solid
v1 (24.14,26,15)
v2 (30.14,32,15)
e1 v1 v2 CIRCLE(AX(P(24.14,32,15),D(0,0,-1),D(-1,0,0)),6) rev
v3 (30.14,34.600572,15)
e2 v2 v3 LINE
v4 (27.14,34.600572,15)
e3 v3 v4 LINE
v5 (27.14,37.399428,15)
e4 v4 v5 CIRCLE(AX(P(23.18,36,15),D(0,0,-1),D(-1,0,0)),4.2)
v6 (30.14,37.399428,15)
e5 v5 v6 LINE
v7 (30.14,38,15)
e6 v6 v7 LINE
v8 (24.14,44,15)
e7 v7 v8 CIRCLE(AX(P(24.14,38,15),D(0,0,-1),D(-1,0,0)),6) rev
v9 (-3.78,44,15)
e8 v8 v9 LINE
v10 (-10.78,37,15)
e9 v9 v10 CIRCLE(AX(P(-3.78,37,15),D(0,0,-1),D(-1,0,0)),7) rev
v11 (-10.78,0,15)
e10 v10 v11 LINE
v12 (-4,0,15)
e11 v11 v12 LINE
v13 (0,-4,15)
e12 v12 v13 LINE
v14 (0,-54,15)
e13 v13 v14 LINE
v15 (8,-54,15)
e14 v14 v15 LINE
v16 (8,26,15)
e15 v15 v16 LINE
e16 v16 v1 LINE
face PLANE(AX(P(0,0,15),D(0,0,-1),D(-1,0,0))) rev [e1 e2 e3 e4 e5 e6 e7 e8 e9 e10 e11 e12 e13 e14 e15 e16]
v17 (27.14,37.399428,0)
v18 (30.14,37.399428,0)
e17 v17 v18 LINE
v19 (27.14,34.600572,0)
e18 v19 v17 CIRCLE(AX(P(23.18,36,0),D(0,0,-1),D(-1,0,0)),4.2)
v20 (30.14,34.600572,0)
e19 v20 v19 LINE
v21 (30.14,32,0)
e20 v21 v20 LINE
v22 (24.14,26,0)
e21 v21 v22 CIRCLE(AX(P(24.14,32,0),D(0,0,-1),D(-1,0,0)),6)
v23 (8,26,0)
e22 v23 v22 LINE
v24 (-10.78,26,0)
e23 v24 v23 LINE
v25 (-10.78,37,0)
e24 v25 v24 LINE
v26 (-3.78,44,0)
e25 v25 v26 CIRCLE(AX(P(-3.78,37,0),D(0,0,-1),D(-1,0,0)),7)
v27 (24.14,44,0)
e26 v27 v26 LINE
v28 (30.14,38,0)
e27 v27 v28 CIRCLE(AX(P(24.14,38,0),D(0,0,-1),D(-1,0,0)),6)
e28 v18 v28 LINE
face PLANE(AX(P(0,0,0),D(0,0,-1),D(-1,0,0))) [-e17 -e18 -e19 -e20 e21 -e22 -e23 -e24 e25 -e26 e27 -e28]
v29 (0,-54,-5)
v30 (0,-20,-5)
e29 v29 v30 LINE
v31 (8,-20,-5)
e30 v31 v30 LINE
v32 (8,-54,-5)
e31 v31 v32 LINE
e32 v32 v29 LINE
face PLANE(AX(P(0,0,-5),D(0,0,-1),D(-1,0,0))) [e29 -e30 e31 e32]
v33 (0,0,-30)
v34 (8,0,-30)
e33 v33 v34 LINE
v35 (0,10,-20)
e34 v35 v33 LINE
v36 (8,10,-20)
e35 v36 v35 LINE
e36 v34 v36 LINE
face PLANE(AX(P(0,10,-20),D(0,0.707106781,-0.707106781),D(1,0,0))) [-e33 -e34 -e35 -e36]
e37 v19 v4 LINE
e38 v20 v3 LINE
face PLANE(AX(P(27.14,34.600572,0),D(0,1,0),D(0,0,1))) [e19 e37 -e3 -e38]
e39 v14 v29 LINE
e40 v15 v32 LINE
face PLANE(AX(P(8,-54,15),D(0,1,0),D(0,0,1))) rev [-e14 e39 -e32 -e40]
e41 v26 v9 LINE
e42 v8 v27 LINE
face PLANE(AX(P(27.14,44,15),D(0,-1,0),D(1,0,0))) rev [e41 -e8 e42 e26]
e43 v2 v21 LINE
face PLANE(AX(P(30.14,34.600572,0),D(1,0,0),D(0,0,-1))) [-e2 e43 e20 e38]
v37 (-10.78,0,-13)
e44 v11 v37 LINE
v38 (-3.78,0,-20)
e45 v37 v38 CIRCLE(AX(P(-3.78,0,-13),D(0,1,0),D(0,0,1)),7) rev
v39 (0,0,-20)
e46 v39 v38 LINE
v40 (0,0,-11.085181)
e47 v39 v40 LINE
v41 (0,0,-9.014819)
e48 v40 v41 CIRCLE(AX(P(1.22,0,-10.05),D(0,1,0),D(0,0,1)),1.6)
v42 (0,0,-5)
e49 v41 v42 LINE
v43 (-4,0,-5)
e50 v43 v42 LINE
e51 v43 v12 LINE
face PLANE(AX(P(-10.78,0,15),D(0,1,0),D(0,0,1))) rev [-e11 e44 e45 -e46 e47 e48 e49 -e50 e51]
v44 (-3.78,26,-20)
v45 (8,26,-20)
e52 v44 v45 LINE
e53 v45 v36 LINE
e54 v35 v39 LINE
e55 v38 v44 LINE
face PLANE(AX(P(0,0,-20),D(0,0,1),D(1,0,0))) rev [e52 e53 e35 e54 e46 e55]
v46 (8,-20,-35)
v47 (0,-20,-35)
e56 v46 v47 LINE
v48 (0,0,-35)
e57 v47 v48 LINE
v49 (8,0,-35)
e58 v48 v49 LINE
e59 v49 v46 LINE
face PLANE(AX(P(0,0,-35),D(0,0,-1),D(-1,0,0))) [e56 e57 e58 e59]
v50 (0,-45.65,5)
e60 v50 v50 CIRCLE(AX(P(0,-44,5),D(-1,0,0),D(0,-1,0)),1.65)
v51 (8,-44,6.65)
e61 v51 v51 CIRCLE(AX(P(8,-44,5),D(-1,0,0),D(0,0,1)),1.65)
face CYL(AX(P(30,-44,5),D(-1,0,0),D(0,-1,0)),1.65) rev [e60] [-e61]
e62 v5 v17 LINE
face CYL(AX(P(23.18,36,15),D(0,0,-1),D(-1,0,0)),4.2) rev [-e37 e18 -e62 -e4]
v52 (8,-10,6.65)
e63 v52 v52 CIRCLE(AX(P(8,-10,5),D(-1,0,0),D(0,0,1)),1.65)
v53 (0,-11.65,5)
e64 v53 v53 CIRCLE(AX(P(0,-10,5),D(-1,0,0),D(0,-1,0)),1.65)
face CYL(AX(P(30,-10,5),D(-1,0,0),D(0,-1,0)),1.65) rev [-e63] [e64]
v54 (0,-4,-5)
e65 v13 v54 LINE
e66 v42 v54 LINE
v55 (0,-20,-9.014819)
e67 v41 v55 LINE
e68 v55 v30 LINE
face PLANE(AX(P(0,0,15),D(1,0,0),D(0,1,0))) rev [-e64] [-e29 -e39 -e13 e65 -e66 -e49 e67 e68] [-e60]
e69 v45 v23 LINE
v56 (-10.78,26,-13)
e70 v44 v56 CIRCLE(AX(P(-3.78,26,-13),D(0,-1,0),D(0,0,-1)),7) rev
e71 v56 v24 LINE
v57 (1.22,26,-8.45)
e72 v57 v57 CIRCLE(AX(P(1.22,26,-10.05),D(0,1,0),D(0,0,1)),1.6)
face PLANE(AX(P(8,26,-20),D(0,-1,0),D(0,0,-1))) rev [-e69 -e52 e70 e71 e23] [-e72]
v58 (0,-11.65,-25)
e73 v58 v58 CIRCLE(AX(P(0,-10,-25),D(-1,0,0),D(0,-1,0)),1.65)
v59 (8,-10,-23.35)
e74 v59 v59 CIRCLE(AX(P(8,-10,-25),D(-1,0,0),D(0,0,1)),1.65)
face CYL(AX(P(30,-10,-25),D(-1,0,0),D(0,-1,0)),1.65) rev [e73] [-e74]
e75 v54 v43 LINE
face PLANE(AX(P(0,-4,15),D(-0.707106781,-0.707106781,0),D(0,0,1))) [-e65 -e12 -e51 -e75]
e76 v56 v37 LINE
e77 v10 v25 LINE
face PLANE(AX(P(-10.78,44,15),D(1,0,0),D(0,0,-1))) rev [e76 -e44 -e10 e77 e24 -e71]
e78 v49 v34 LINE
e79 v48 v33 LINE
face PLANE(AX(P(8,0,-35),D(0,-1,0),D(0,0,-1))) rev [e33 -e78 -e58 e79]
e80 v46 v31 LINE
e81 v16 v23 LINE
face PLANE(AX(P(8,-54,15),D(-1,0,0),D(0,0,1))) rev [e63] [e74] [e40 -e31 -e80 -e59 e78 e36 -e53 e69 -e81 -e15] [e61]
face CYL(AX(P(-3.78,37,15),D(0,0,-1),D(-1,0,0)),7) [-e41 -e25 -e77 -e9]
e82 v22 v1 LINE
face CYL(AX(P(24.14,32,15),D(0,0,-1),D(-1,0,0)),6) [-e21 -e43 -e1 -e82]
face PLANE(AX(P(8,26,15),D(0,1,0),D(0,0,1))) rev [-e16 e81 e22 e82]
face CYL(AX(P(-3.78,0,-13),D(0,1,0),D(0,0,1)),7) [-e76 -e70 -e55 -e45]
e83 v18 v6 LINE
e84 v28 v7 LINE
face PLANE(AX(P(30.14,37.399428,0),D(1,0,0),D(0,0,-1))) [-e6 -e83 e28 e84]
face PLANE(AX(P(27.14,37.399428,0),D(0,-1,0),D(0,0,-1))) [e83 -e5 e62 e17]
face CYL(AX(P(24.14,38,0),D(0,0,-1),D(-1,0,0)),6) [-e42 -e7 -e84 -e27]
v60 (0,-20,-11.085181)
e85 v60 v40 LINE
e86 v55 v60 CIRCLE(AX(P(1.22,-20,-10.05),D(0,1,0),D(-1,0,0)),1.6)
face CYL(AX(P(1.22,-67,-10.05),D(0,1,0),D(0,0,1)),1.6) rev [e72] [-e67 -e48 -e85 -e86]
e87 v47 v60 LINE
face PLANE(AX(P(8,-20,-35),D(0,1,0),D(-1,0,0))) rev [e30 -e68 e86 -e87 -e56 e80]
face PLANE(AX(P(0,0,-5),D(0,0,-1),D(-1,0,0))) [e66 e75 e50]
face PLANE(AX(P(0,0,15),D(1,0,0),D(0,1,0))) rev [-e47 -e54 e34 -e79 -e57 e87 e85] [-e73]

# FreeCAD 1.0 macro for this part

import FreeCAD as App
import Part
import Sketcher

V = App.Vector


def edges_at(feature, points):
    """Names of the edges that pass closest to the given points."""
    edges = feature.Shape.Edges
    near = lambda p: min(range(len(edges)), key=lambda i: edges[i].distToShape(Part.Vertex(*p))[0])
    return sorted({f"Edge{near(p) + 1}" for p in points})

doc = App.newDocument("Part")
body = doc.addObject("PartDesign::Body", "Body")

# Sketch on XY plane
sketch1 = body.newObject("Sketcher::SketchObject", "Sketch")
sketch1.AttachmentSupport = (doc.getObject("XY_Plane"), [""])
sketch1.MapMode = "FlatFace"
sketch1.addGeometry([
    Part.LineSegment(V(8, 26, 0), V(27, 26, 0)),  # 0
    Part.LineSegment(V(27, 26, 0), V(27, 44, 0)),  # 1
    Part.LineSegment(V(27, 44, 0), V(-11, 44, 0)),  # 2
    Part.LineSegment(V(-11, 44, 0), V(-11, 0, 0)),  # 3
    Part.LineSegment(V(-11, 0, 0), V(0, 0, 0)),  # 4
    Part.LineSegment(V(0, 0, 0), V(0, -54, 0)),  # 5
    Part.LineSegment(V(0, -54, 0), V(8, -54, 0)),  # 6
    Part.LineSegment(V(8, -54, 0), V(8, 26, 0)),  # 7
], False)
sketch1.addConstraint([
    Sketcher.Constraint("Coincident", 0, 2, 1, 1),
    Sketcher.Constraint("Coincident", 1, 2, 2, 1),
    Sketcher.Constraint("Coincident", 2, 2, 3, 1),
    Sketcher.Constraint("Coincident", 3, 2, 4, 1),
    Sketcher.Constraint("Coincident", 4, 2, 5, 1),
    Sketcher.Constraint("Coincident", 5, 2, 6, 1),
    Sketcher.Constraint("Coincident", 6, 2, 7, 1),
    Sketcher.Constraint("Coincident", 7, 2, 0, 1),
    Sketcher.Constraint("Horizontal", 0),
    Sketcher.Constraint("Vertical", 1),
    Sketcher.Constraint("Horizontal", 2),
    Sketcher.Constraint("Vertical", 3),
    Sketcher.Constraint("Horizontal", 4),
    Sketcher.Constraint("Vertical", 5),
    Sketcher.Constraint("Horizontal", 6),
    Sketcher.Constraint("Vertical", 7),
    Sketcher.Constraint("Coincident", 4, 2, -1, 1),
    Sketcher.Constraint("DistanceX", 6, 1, 6, 2, 8.0),
    Sketcher.Constraint("DistanceY", 1, 1, 1, 2, 18.0),
    Sketcher.Constraint("DistanceY", 3, 2, 3, 1, 44.0),
    Sketcher.Constraint("DistanceY", 5, 2, 5, 1, 54.0),
    Sketcher.Constraint("DistanceX", 0, 1, 0, 2, 19.14),
    Sketcher.Constraint("DistanceX", 2, 2, 2, 1, 37.92),
])
pad1 = body.newObject("PartDesign::Pad", "Pad")
pad1.Profile = sketch1
pad1.Length = 15

# Sketch on XY plane
sketch2 = body.newObject("Sketcher::SketchObject", "Sketch001")
sketch2.AttachmentSupport = (doc.getObject("XY_Plane"), [""])
sketch2.MapMode = "FlatFace"
sketch2.addGeometry([
    Part.LineSegment(V(8, 26, 0), V(8, 0, 0)),
    Part.LineSegment(V(8, 0, 0), V(-11, 0, 0)),
    Part.LineSegment(V(-11, 0, 0), V(-11, 26, 0)),
    Part.LineSegment(V(-11, 26, 0), V(8, 26, 0)),
], False)
sketch2.addConstraint([
    Sketcher.Constraint("Coincident", 0, 2, 1, 1),
    Sketcher.Constraint("Coincident", 1, 2, 2, 1),
    Sketcher.Constraint("Coincident", 2, 2, 3, 1),
    Sketcher.Constraint("Coincident", 3, 2, 0, 1),
    Sketcher.Constraint("Vertical", 0),
    Sketcher.Constraint("Horizontal", 1),
    Sketcher.Constraint("Vertical", 2),
    Sketcher.Constraint("Horizontal", 3),
    Sketcher.Constraint("PointOnObject", 0, 2, -1),
    Sketcher.Constraint("DistanceY", 0, 2, 0, 1, 26.0),
    Sketcher.Constraint("DistanceX", -1, 1, 0, 2, 8.0),
    Sketcher.Constraint("DistanceX", 1, 2, 1, 1, 18.78),
])
pad2 = body.newObject("PartDesign::Pad", "Pad001")
pad2.Profile = sketch2
pad2.Length = 20
pad2.Reversed = True

# Sketch on XY plane
sketch3 = body.newObject("Sketcher::SketchObject", "Sketch002")
sketch3.AttachmentSupport = (doc.getObject("XY_Plane"), [""])
sketch3.MapMode = "FlatFace"
sketch3.addGeometry([
    Part.LineSegment(V(8, 0, 0), V(8, -54, 0)),
    Part.LineSegment(V(8, -54, 0), V(0, -54, 0)),
    Part.LineSegment(V(0, -54, 0), V(0, 0, 0)),
    Part.LineSegment(V(0, 0, 0), V(8, 0, 0)),
], False)
sketch3.addConstraint([
    Sketcher.Constraint("Coincident", 0, 2, 1, 1),
    Sketcher.Constraint("Coincident", 1, 2, 2, 1),
    Sketcher.Constraint("Coincident", 2, 2, 3, 1),
    Sketcher.Constraint("Coincident", 3, 2, 0, 1),
    Sketcher.Constraint("Vertical", 0),
    Sketcher.Constraint("Horizontal", 1),
    Sketcher.Constraint("Vertical", 2),
    Sketcher.Constraint("Horizontal", 3),
    Sketcher.Constraint("Coincident", 2, 2, -1, 1),
    Sketcher.Constraint("DistanceX", 1, 2, 1, 1, 8.0),
    Sketcher.Constraint("DistanceY", 0, 2, 0, 1, 54.0),
])
pad3 = body.newObject("PartDesign::Pad", "Pad002")
pad3.Profile = sketch3
pad3.Length = 5
pad3.Reversed = True

# Sketch on XY plane
sketch4 = body.newObject("Sketcher::SketchObject", "Sketch003")
sketch4.AttachmentSupport = (doc.getObject("XY_Plane"), [""])
sketch4.MapMode = "FlatFace"
sketch4.addGeometry(Part.Circle(V(23.2, 36, 0), V(0, 0, 1), 4.2), False)
sketch4.addConstraint([
    Sketcher.Constraint("Diameter", 0, 8.4),
    Sketcher.Constraint("DistanceY", -1, 1, 0, 3, 36.0),
    Sketcher.Constraint("DistanceX", -1, 1, 0, 3, 23.18),
])
pocket1 = body.newObject("PartDesign::Pocket", "Pocket")
pocket1.Profile = sketch4
pocket1.Length = 15
pocket1.Reversed = True
doc.recompute()

chamfer = body.newObject("PartDesign::Chamfer", "Chamfer")
chamfer.Base = (pocket1, edges_at(pocket1, [(0, 0, 5)]))
chamfer.Size = 4
doc.recompute()

fillet = body.newObject("PartDesign::Fillet", "Fillet")
fillet.Base = (chamfer, edges_at(chamfer, [(-10.78, 44, 7.5)]))
fillet.Radius = 7
doc.recompute()

fillet2 = body.newObject("PartDesign::Fillet", "Fillet001")
fillet2.Base = (fillet, edges_at(fillet, [(-10.78, 13, -20)]))
fillet2.Radius = 7

# Sketch on XY plane
sketch5 = body.newObject("Sketcher::SketchObject", "Sketch004")
sketch5.AttachmentSupport = (doc.getObject("XY_Plane"), [""])
sketch5.MapMode = "FlatFace"
sketch5.AttachmentOffset = App.Placement(V(0, 0, -5), App.Rotation())
sketch5.addGeometry([
    Part.LineSegment(V(8, 0, 0), V(8, -20, 0)),
    Part.LineSegment(V(8, -20, 0), V(0, -20, 0)),
    Part.LineSegment(V(0, -20, 0), V(0, 0, 0)),
    Part.LineSegment(V(0, 0, 0), V(8, 0, 0)),
], False)
sketch5.addConstraint([
    Sketcher.Constraint("Coincident", 0, 2, 1, 1),
    Sketcher.Constraint("Coincident", 1, 2, 2, 1),
    Sketcher.Constraint("Coincident", 2, 2, 3, 1),
    Sketcher.Constraint("Coincident", 3, 2, 0, 1),
    Sketcher.Constraint("Vertical", 0),
    Sketcher.Constraint("Horizontal", 1),
    Sketcher.Constraint("Vertical", 2),
    Sketcher.Constraint("Horizontal", 3),
    Sketcher.Constraint("Coincident", 2, 2, -1, 1),
    Sketcher.Constraint("DistanceX", 1, 2, 1, 1, 8.0),
    Sketcher.Constraint("DistanceY", 0, 2, 0, 1, 20.0),
])
pad4 = body.newObject("PartDesign::Pad", "Pad003")
pad4.Profile = sketch5
pad4.Length = 30
pad4.Reversed = True

# Sketch on YZ plane
sketch6 = body.newObject("Sketcher::SketchObject", "Sketch005")
sketch6.AttachmentSupport = (doc.getObject("YZ_Plane"), [""])
sketch6.MapMode = "FlatFace"
sketch6.addGeometry([
    Part.Circle(V(-10, -25, 0), V(0, 0, 1), 1.6),
    Part.Circle(V(-10, 5, 0), V(0, 0, 1), 1.6),
    Part.Circle(V(-44, 5, 0), V(0, 0, 1), 1.6),
], False)
sketch6.addConstraint([
    Sketcher.Constraint("Equal", 0, 1),
    Sketcher.Constraint("Equal", 1, 2),
    Sketcher.Constraint("Horizontal", 1, 3, 2, 3),
    Sketcher.Constraint("Vertical", 0, 3, 1, 3),
    Sketcher.Constraint("Diameter", 0, 3.3),
    Sketcher.Constraint("DistanceX", 0, 3, -1, 1, 10.0),
    Sketcher.Constraint("DistanceY", 0, 3, -1, 1, 25.0),
    Sketcher.Constraint("DistanceY", -1, 1, 1, 3, 5.0),
    Sketcher.Constraint("DistanceX", 2, 3, -1, 1, 44.0),
])
pocket2 = body.newObject("PartDesign::Pocket", "Pocket001")
pocket2.Profile = sketch6
pocket2.Length = 30
pocket2.Reversed = True
doc.recompute()

chamfer2 = body.newObject("PartDesign::Chamfer", "Chamfer001")
chamfer2.Base = (pocket2, edges_at(pocket2, [(4, 0, -20)]))
chamfer2.Size = 10

# Sketch on XY plane
sketch7 = body.newObject("Sketcher::SketchObject", "Sketch006")
sketch7.AttachmentSupport = (doc.getObject("XY_Plane"), [""])
sketch7.MapMode = "FlatFace"
sketch7.AttachmentOffset = App.Placement(V(0, 0, 15), App.Rotation())
sketch7.addGeometry([
    Part.LineSegment(V(27.1, 44, 0), V(27.1, 37.4, 0)),  # 0
    Part.LineSegment(V(27.1, 37.4, 0), V(30.1, 37.4, 0)),  # 1
    Part.LineSegment(V(30.1, 37.4, 0), V(30.1, 44, 0)),  # 2
    Part.LineSegment(V(30.1, 44, 0), V(27.1, 44, 0)),  # 3
    Part.LineSegment(V(27.1, 34.6, 0), V(27.1, 26, 0)),  # 4
    Part.LineSegment(V(27.1, 26, 0), V(30.1, 26, 0)),  # 5
    Part.LineSegment(V(30.1, 26, 0), V(30.1, 34.6, 0)),  # 6
    Part.LineSegment(V(30.1, 34.6, 0), V(27.1, 34.6, 0)),  # 7
], False)
sketch7.addConstraint([
    Sketcher.Constraint("Coincident", 0, 2, 1, 1),
    Sketcher.Constraint("Coincident", 1, 2, 2, 1),
    Sketcher.Constraint("Coincident", 2, 2, 3, 1),
    Sketcher.Constraint("Coincident", 3, 2, 0, 1),
    Sketcher.Constraint("Coincident", 4, 2, 5, 1),
    Sketcher.Constraint("Coincident", 5, 2, 6, 1),
    Sketcher.Constraint("Coincident", 6, 2, 7, 1),
    Sketcher.Constraint("Coincident", 7, 2, 4, 1),
    Sketcher.Constraint("Vertical", 0),
    Sketcher.Constraint("Horizontal", 1),
    Sketcher.Constraint("Vertical", 2),
    Sketcher.Constraint("Horizontal", 3),
    Sketcher.Constraint("Vertical", 4),
    Sketcher.Constraint("Horizontal", 5),
    Sketcher.Constraint("Vertical", 6),
    Sketcher.Constraint("Horizontal", 7),
    Sketcher.Constraint("Vertical", 3, 2, 4, 2),
    Sketcher.Constraint("Vertical", 2, 2, 5, 2),
    Sketcher.Constraint("DistanceX", 1, 1, 1, 2, 3.0),
    Sketcher.Constraint("DistanceY", -1, 1, 2, 2, 44.0),
    Sketcher.Constraint("DistanceY", -1, 1, 4, 2, 26.0),
    Sketcher.Constraint("DistanceX", -1, 1, 0, 2, 27.14),
    Sketcher.Constraint("DistanceY", 0, 2, 0, 1, 6.600572),
    Sketcher.Constraint("DistanceY", 4, 2, 4, 1, 8.600572),
])
pad5 = body.newObject("PartDesign::Pad", "Pad004")
pad5.Profile = sketch7
pad5.Length = 15
pad5.Reversed = True
doc.recompute()

fillet3 = body.newObject("PartDesign::Fillet", "Fillet002")
fillet3.Base = (pad5, edges_at(pad5, [(30.14, 44, 7.5)]))
fillet3.Radius = 6

# Sketch on XZ plane
sketch8 = body.newObject("Sketcher::SketchObject", "Sketch007")
sketch8.AttachmentSupport = (doc.getObject("XZ_Plane"), [""])
sketch8.MapMode = "FlatFace"
sketch8.AttachmentOffset = App.Placement(V(0, 0, -26), App.Rotation())
sketch8.addGeometry(Part.Circle(V(1.2, -10.1, 0), V(0, 0, 1), 1.6), False)
sketch8.addConstraint([
    Sketcher.Constraint("Diameter", 0, 3.2),
    Sketcher.Constraint("DistanceX", -1, 1, 0, 3, 1.22),
    Sketcher.Constraint("DistanceY", 0, 3, -1, 1, 10.05),
])
pocket3 = body.newObject("PartDesign::Pocket", "Pocket002")
pocket3.Profile = sketch8
pocket3.Length = 93
pocket3.Reversed = True
doc.recompute()

fillet4 = body.newObject("PartDesign::Fillet", "Fillet003")
fillet4.Base = (pocket3, edges_at(pocket3, [(30.14, 26, 7.5)]))
fillet4.Radius = 6

doc.recompute()
